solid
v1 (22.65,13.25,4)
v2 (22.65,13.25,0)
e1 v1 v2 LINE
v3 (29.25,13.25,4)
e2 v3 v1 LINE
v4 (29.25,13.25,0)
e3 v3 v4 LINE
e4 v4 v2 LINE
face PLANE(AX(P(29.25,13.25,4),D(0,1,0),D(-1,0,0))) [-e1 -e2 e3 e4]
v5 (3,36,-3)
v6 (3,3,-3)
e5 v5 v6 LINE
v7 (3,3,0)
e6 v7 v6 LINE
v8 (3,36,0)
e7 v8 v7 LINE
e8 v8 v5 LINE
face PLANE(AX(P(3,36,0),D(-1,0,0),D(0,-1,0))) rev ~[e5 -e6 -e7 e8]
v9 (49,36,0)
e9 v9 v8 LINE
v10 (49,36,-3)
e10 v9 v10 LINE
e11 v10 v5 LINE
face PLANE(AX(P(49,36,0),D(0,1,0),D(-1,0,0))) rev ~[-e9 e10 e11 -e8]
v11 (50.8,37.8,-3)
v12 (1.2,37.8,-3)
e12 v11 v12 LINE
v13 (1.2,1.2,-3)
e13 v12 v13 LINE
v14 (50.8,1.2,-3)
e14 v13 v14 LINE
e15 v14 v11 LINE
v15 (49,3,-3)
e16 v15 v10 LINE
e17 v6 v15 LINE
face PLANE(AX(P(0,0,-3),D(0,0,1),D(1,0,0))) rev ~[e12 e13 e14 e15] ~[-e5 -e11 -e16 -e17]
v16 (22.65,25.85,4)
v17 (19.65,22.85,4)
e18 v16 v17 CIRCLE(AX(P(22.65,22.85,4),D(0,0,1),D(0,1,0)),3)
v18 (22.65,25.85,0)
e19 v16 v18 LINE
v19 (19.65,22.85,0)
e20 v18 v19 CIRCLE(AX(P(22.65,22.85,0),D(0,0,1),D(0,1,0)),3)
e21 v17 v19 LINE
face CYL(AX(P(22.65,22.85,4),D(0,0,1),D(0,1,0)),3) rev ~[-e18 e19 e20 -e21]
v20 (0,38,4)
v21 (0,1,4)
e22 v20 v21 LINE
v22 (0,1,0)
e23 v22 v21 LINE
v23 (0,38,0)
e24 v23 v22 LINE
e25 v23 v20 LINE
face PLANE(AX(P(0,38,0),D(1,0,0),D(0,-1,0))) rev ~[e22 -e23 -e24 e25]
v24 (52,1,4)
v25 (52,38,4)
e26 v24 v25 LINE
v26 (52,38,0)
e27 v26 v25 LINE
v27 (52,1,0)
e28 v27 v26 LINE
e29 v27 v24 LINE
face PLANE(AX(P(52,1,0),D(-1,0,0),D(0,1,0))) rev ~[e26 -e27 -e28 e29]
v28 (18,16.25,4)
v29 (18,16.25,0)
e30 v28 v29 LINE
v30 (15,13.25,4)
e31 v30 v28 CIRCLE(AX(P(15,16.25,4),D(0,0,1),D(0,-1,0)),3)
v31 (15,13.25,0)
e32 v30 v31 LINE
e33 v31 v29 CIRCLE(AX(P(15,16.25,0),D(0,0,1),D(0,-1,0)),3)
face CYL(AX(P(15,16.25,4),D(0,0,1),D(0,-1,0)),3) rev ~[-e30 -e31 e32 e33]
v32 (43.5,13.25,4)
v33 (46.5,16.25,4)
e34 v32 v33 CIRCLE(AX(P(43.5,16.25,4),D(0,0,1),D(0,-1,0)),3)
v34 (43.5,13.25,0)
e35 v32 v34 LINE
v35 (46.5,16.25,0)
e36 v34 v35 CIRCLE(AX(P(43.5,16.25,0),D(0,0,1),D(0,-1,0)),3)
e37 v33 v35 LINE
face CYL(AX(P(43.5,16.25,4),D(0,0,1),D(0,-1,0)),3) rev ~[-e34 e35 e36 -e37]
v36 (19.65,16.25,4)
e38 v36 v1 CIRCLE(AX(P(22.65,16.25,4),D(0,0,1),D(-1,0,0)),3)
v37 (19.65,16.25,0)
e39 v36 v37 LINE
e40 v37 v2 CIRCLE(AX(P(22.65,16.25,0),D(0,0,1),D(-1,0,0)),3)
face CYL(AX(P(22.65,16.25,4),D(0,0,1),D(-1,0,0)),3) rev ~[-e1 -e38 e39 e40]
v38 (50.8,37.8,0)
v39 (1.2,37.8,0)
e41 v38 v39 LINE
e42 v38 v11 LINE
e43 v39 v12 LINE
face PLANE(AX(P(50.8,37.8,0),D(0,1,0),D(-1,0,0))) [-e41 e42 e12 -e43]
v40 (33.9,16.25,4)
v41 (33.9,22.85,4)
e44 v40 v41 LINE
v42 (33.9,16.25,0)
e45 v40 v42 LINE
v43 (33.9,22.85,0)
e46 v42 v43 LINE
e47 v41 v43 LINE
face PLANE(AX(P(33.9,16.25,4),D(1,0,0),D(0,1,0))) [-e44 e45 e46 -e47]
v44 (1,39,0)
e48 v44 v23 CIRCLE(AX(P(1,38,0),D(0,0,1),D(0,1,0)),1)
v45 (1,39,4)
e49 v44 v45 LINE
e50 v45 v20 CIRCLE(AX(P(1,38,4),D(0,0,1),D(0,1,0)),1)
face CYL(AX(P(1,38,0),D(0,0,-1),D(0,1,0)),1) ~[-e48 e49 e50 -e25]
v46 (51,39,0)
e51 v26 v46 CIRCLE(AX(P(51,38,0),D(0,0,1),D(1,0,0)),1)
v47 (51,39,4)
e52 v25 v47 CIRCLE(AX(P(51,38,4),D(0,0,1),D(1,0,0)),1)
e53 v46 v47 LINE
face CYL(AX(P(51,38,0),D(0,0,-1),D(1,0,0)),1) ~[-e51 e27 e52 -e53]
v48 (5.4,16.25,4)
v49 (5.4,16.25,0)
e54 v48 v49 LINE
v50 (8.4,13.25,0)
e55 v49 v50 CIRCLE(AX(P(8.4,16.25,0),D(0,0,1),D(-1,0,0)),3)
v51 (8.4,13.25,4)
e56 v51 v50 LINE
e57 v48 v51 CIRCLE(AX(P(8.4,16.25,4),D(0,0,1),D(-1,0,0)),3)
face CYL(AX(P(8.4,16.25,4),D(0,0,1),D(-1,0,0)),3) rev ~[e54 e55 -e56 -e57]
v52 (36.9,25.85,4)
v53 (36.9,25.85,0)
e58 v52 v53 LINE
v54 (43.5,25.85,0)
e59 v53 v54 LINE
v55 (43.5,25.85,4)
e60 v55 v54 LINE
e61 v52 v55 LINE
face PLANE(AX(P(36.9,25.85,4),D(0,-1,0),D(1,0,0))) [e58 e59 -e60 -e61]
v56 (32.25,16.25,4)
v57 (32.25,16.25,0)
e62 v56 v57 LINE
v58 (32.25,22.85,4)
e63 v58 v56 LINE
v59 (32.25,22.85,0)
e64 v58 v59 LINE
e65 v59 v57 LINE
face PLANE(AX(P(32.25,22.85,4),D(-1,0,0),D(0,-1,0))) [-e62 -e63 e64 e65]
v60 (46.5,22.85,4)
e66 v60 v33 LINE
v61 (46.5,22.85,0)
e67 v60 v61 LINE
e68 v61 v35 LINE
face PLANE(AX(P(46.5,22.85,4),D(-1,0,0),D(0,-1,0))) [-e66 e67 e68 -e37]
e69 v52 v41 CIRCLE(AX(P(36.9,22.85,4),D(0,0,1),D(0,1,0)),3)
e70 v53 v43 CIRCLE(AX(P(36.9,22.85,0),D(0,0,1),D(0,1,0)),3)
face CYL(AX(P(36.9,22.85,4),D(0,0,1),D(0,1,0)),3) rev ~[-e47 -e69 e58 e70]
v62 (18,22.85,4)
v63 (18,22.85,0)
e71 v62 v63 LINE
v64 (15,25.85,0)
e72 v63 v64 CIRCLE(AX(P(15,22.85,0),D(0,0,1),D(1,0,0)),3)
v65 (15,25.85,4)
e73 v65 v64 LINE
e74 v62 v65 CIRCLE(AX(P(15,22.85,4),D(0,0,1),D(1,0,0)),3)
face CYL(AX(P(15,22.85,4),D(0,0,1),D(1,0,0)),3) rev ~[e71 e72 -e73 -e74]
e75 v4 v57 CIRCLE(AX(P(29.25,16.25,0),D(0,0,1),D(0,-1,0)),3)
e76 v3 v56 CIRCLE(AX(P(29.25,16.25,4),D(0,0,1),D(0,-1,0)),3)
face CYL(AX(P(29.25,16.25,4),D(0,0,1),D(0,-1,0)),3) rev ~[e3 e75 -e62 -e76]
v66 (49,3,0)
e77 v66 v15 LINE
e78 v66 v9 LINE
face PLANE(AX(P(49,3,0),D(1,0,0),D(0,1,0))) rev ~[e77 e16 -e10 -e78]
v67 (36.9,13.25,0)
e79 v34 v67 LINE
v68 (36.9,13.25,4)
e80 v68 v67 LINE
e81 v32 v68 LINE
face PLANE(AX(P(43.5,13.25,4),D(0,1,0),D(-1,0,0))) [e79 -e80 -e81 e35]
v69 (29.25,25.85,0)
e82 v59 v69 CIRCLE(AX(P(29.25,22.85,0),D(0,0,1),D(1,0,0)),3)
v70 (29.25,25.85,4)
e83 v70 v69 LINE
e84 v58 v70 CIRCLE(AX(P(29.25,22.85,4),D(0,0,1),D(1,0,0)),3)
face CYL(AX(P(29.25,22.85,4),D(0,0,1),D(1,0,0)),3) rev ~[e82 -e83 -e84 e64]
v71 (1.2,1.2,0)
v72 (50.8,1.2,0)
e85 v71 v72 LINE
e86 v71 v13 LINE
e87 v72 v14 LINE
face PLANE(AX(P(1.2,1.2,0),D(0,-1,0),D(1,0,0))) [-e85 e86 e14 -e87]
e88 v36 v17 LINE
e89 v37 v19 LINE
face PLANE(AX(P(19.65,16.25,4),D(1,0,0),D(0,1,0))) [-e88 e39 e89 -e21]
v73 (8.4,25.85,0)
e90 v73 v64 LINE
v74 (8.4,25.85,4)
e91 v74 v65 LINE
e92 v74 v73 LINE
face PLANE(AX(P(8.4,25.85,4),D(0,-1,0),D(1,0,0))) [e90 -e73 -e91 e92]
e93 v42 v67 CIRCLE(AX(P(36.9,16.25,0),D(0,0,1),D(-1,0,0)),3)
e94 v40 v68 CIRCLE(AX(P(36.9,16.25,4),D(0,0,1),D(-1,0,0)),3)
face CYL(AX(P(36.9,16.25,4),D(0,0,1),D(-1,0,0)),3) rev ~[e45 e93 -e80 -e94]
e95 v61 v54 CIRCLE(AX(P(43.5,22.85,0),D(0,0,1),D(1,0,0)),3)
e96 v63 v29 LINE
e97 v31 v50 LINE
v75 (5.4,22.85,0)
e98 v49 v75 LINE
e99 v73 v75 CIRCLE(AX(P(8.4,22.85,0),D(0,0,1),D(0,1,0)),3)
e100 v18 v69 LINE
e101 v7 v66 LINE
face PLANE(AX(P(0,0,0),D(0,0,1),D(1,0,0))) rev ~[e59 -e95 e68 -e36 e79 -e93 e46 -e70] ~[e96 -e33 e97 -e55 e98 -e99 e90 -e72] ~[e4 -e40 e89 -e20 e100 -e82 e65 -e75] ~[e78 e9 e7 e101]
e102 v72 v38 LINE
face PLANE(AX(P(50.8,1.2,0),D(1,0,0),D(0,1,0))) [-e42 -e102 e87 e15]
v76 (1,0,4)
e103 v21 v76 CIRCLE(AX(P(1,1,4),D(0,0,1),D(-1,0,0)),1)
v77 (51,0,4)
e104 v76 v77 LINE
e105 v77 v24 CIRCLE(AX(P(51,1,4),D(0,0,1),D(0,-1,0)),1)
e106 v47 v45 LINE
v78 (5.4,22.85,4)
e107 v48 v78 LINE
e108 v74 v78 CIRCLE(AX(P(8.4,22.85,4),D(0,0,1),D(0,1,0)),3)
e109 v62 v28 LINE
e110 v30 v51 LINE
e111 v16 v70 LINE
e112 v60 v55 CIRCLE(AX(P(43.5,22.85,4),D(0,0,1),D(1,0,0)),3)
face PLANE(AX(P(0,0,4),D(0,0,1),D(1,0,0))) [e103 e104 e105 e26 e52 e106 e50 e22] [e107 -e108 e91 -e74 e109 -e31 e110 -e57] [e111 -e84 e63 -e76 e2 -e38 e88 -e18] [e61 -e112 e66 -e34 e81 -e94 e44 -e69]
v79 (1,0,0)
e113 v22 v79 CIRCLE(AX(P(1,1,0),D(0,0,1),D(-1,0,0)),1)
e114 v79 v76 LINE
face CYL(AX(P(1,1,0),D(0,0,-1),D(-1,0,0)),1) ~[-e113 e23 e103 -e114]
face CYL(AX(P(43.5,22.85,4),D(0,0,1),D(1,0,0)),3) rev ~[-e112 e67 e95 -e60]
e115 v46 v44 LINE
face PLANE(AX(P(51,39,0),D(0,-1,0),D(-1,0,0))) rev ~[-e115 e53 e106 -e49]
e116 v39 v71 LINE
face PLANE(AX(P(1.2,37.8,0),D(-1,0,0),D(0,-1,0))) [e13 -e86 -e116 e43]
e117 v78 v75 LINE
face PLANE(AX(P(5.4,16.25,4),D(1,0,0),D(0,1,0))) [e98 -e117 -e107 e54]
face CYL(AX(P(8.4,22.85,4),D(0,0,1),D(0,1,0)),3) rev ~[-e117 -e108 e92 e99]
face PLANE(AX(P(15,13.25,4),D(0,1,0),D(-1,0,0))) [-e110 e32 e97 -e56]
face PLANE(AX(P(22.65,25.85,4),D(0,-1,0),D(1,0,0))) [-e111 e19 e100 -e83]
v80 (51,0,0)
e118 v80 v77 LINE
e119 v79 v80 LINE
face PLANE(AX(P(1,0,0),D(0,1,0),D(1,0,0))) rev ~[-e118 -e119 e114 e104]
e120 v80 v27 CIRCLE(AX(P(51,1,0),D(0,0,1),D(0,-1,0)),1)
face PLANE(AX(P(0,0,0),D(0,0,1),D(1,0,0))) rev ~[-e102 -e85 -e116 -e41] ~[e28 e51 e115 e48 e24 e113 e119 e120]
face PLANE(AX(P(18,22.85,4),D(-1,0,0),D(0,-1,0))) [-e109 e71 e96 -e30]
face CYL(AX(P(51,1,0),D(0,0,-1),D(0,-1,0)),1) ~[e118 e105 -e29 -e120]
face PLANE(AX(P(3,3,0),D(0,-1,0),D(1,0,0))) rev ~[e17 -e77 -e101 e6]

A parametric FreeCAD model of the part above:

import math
import FreeCAD as App
import Part
import Sketcher


def add_polygon(sketch, points):
    """Adds a closed chain of lines whose ends are joined by coincident constraints."""
    first, n = sketch.GeometryCount, len(points)
    for a, b in zip(points, points[1:] + points[:1]):
        sketch.addGeometry(Part.LineSegment(App.Vector(*a, 0), App.Vector(*b, 0)), False)
    for i in range(n):
        sketch.addConstraint(Sketcher.Constraint("Coincident", first + i, 2, first + (i + 1) % n, 1))

doc = App.newDocument("Part")
params = doc.addObject("Spreadsheet::Sheet", "Params")
for row, (alias, value) in enumerate([
    ("sketch1_radius", "1 mm"),
    ("pad1_length", "4 mm"),
    ("sketch2_width", "46 mm"),
    ("sketch2_height", "33 mm"),
    ("sketch2_width2", "49.6 mm"),
    ("sketch2_height2", "36.6 mm"),
    ("pad2_length", "3 mm"),
    ("sketch3_radius", "3 mm"),
    ("sketch3_width", "6.6 mm"),
    ("pocket1_length", "8 mm"),
], start=1):
    params.set(f"A{row}", alias)
    params.set(f"B{row}", "=" + value)
    params.setAlias(f"B{row}", alias)

body = doc.addObject("PartDesign::Body", "Body")

# Sketch on XY plane
sketch1 = body.newObject("Sketcher::SketchObject", "Sketch")
sketch1.AttachmentSupport = (doc.getObject("XY_Plane"), [""])
sketch1.MapMode = "FlatFace"
sketch1.addGeometry([
    Part.ArcOfCircle(Part.Circle(App.Vector(1, 1, 0), App.Vector(0, 0, 1), 1), math.radians(180), math.radians(270)),  # 0
    Part.LineSegment(App.Vector(1, 0, 0), App.Vector(51, 0, 0)),  # 1
    Part.ArcOfCircle(Part.Circle(App.Vector(51, 1, 0), App.Vector(0, 0, 1), 1), math.radians(-90), math.radians(0)),  # 2
    Part.LineSegment(App.Vector(52, 1, 0), App.Vector(52, 38, 0)),  # 3
    Part.ArcOfCircle(Part.Circle(App.Vector(51, 38, 0), App.Vector(0, 0, 1), 1), math.radians(0), math.radians(90)),  # 4
    Part.LineSegment(App.Vector(51, 39, 0), App.Vector(1, 39, 0)),  # 5
    Part.ArcOfCircle(Part.Circle(App.Vector(1, 38, 0), App.Vector(0, 0, 1), 1), math.radians(90), math.radians(180)),  # 6
    Part.LineSegment(App.Vector(0, 38, 0), App.Vector(0, 1, 0)),  # 7
], False)
sketch1.addConstraint([
    Sketcher.Constraint("Tangent", 0, 2, 1, 1),
    Sketcher.Constraint("Tangent", 1, 2, 2, 1),
    Sketcher.Constraint("Tangent", 2, 2, 3, 1),
    Sketcher.Constraint("Tangent", 3, 2, 4, 1),
    Sketcher.Constraint("Tangent", 4, 2, 5, 1),
    Sketcher.Constraint("Tangent", 5, 2, 6, 1),
    Sketcher.Constraint("Tangent", 6, 2, 7, 1),
    Sketcher.Constraint("Tangent", 7, 2, 0, 1),
    Sketcher.Constraint("Horizontal", 1),
    Sketcher.Constraint("Vertical", 3),
    Sketcher.Constraint("Horizontal", 5),
    Sketcher.Constraint("Vertical", 7),
    Sketcher.Constraint("Equal", 0, 2),
    Sketcher.Constraint("Equal", 2, 4),
    Sketcher.Constraint("Equal", 4, 6),
    Sketcher.Constraint("PointOnObject", 0, 2, -1),
    Sketcher.Constraint("PointOnObject", 6, 2, -2),
    Sketcher.Constraint("Radius", 0, 1.0),
    Sketcher.Constraint("DistanceX", -1, 1, 2, 2, 52.0),
    Sketcher.Constraint("DistanceY", -1, 1, 4, 2, 39.0),
])
sketch1.setExpression("Constraints[17]", "Params.sketch1_radius")
pad1 = body.newObject("PartDesign::Pad", "Pad")
pad1.Profile = sketch1
pad1.setExpression("Length", "Params.pad1_length")

# Sketch on XY plane
sketch2 = body.newObject("Sketcher::SketchObject", "Sketch001")
sketch2.AttachmentSupport = (doc.getObject("XY_Plane"), [""])
sketch2.MapMode = "FlatFace"
add_polygon(sketch2, [(50.8, 37.8), (1.2, 37.8), (1.2, 1.2), (50.8, 1.2)])  # lines 0-3
add_polygon(sketch2, [(49, 36), (49, 3), (3, 3), (3, 36)])  # lines 4-7
sketch2.addConstraint([
    Sketcher.Constraint("Horizontal", 0),
    Sketcher.Constraint("Vertical", 1),
    Sketcher.Constraint("Horizontal", 2),
    Sketcher.Constraint("Vertical", 3),
    Sketcher.Constraint("Vertical", 4),
    Sketcher.Constraint("Horizontal", 5),
    Sketcher.Constraint("Vertical", 6),
    Sketcher.Constraint("Horizontal", 7),
    Sketcher.Constraint("DistanceY", -1, 1, 4, 2, 3.0),
    Sketcher.Constraint("DistanceX", -1, 1, 5, 2, 3.0),
    Sketcher.Constraint("DistanceX", -1, 1, 0, 2, 1.2),
    Sketcher.Constraint("DistanceY", -1, 1, 1, 2, 1.2),
    Sketcher.Constraint("DistanceX", 5, 2, 5, 1, 46.0),
    Sketcher.Constraint("DistanceY", 4, 2, 4, 1, 33.0),
    Sketcher.Constraint("DistanceX", 0, 2, 0, 1, 49.6),
    Sketcher.Constraint("DistanceY", 1, 2, 1, 1, 36.6),
])
sketch2.setExpression("Constraints[20]", "Params.sketch2_width")
sketch2.setExpression("Constraints[21]", "Params.sketch2_height")
sketch2.setExpression("Constraints[22]", "Params.sketch2_width2")
sketch2.setExpression("Constraints[23]", "Params.sketch2_height2")
pad2 = body.newObject("PartDesign::Pad", "Pad001")
pad2.Profile = sketch2
pad2.setExpression("Length", "Params.pad2_length")
pad2.Reversed = True

# Sketch on XY plane
sketch3 = body.newObject("Sketcher::SketchObject", "Sketch002")
sketch3.AttachmentSupport = (doc.getObject("XY_Plane"), [""])
sketch3.MapMode = "FlatFace"
sketch3.AttachmentOffset = App.Placement(App.Vector(0, 0, 4), App.Rotation())
sketch3.addGeometry([
    Part.LineSegment(App.Vector(36.9, 13.25, 0), App.Vector(43.5, 13.25, 0)),  # 0
    Part.ArcOfCircle(Part.Circle(App.Vector(43.5, 16.25, 0), App.Vector(0, 0, 1), 3), math.radians(-90), math.radians(0)),  # 1
    Part.LineSegment(App.Vector(46.5, 16.25, 0), App.Vector(46.5, 22.85, 0)),  # 2
    Part.ArcOfCircle(Part.Circle(App.Vector(43.5, 22.85, 0), App.Vector(0, 0, 1), 3), math.radians(0), math.radians(90)),  # 3
    Part.LineSegment(App.Vector(43.5, 25.85, 0), App.Vector(36.9, 25.85, 0)),  # 4
    Part.ArcOfCircle(Part.Circle(App.Vector(36.9, 22.85, 0), App.Vector(0, 0, 1), 3), math.radians(90), math.radians(180)),  # 5
    Part.LineSegment(App.Vector(33.9, 22.85, 0), App.Vector(33.9, 16.25, 0)),  # 6
    Part.ArcOfCircle(Part.Circle(App.Vector(36.9, 16.25, 0), App.Vector(0, 0, 1), 3), math.radians(180), math.radians(270)),  # 7
    Part.LineSegment(App.Vector(22.65, 13.25, 0), App.Vector(29.25, 13.25, 0)),  # 8
    Part.ArcOfCircle(Part.Circle(App.Vector(29.25, 16.25, 0), App.Vector(0, 0, 1), 3), math.radians(-90), math.radians(0)),  # 9
    Part.LineSegment(App.Vector(32.25, 16.25, 0), App.Vector(32.25, 22.85, 0)),  # 10
    Part.ArcOfCircle(Part.Circle(App.Vector(29.25, 22.85, 0), App.Vector(0, 0, 1), 3), math.radians(0), math.radians(90)),  # 11
    Part.LineSegment(App.Vector(29.25, 25.85, 0), App.Vector(22.65, 25.85, 0)),  # 12
    Part.ArcOfCircle(Part.Circle(App.Vector(22.65, 22.85, 0), App.Vector(0, 0, 1), 3), math.radians(90), math.radians(180)),  # 13
    Part.LineSegment(App.Vector(19.65, 22.85, 0), App.Vector(19.65, 16.25, 0)),  # 14
    Part.ArcOfCircle(Part.Circle(App.Vector(22.65, 16.25, 0), App.Vector(0, 0, 1), 3), math.radians(180), math.radians(270)),  # 15
    Part.LineSegment(App.Vector(8.4, 13.25, 0), App.Vector(15, 13.25, 0)),  # 16
    Part.ArcOfCircle(Part.Circle(App.Vector(15, 16.25, 0), App.Vector(0, 0, 1), 3), math.radians(-90), math.radians(0)),  # 17
    Part.LineSegment(App.Vector(18, 16.25, 0), App.Vector(18, 22.85, 0)),  # 18
    Part.ArcOfCircle(Part.Circle(App.Vector(15, 22.85, 0), App.Vector(0, 0, 1), 3), math.radians(0), math.radians(90)),  # 19
    Part.LineSegment(App.Vector(15, 25.85, 0), App.Vector(8.4, 25.85, 0)),  # 20
    Part.ArcOfCircle(Part.Circle(App.Vector(8.4, 22.85, 0), App.Vector(0, 0, 1), 3), math.radians(90), math.radians(180)),  # 21
    Part.LineSegment(App.Vector(5.4, 22.85, 0), App.Vector(5.4, 16.25, 0)),  # 22
    Part.ArcOfCircle(Part.Circle(App.Vector(8.4, 16.25, 0), App.Vector(0, 0, 1), 3), math.radians(180), math.radians(270)),  # 23
], False)
sketch3.addConstraint([
    Sketcher.Constraint("Tangent", 0, 2, 1, 1),
    Sketcher.Constraint("Tangent", 1, 2, 2, 1),
    Sketcher.Constraint("Tangent", 2, 2, 3, 1),
    Sketcher.Constraint("Tangent", 3, 2, 4, 1),
    Sketcher.Constraint("Tangent", 4, 2, 5, 1),
    Sketcher.Constraint("Tangent", 5, 2, 6, 1),
    Sketcher.Constraint("Tangent", 6, 2, 7, 1),
    Sketcher.Constraint("Tangent", 7, 2, 0, 1),
    Sketcher.Constraint("Tangent", 8, 2, 9, 1),
    Sketcher.Constraint("Tangent", 9, 2, 10, 1),
    Sketcher.Constraint("Tangent", 10, 2, 11, 1),
    Sketcher.Constraint("Tangent", 11, 2, 12, 1),
    Sketcher.Constraint("Tangent", 12, 2, 13, 1),
    Sketcher.Constraint("Tangent", 13, 2, 14, 1),
    Sketcher.Constraint("Tangent", 14, 2, 15, 1),
    Sketcher.Constraint("Tangent", 15, 2, 8, 1),
    Sketcher.Constraint("Tangent", 16, 2, 17, 1),
    Sketcher.Constraint("Tangent", 17, 2, 18, 1),
    Sketcher.Constraint("Tangent", 18, 2, 19, 1),
    Sketcher.Constraint("Tangent", 19, 2, 20, 1),
    Sketcher.Constraint("Tangent", 20, 2, 21, 1),
    Sketcher.Constraint("Tangent", 21, 2, 22, 1),
    Sketcher.Constraint("Tangent", 22, 2, 23, 1),
    Sketcher.Constraint("Tangent", 23, 2, 16, 1),
    Sketcher.Constraint("Horizontal", 0),
    Sketcher.Constraint("Vertical", 2),
    Sketcher.Constraint("Horizontal", 4),
    Sketcher.Constraint("Vertical", 6),
    Sketcher.Constraint("Horizontal", 8),
    Sketcher.Constraint("Vertical", 10),
    Sketcher.Constraint("Horizontal", 12),
    Sketcher.Constraint("Vertical", 14),
    Sketcher.Constraint("Horizontal", 16),
    Sketcher.Constraint("Vertical", 18),
    Sketcher.Constraint("Horizontal", 20),
    Sketcher.Constraint("Vertical", 22),
    Sketcher.Constraint("Equal", 1, 3),
    Sketcher.Constraint("Equal", 3, 5),
    Sketcher.Constraint("Equal", 5, 7),
    Sketcher.Constraint("Equal", 7, 9),
    Sketcher.Constraint("Equal", 9, 11),
    Sketcher.Constraint("Equal", 11, 13),
    Sketcher.Constraint("Equal", 13, 15),
    Sketcher.Constraint("Equal", 15, 17),
    Sketcher.Constraint("Equal", 17, 19),
    Sketcher.Constraint("Equal", 19, 21),
    Sketcher.Constraint("Equal", 21, 23),
    Sketcher.Constraint("Horizontal", 7, 3, 9, 3),
    Sketcher.Constraint("Horizontal", 5, 3, 11, 3),
    Sketcher.Constraint("Horizontal", 15, 3, 17, 3),
    Sketcher.Constraint("Horizontal", 13, 3, 19, 3),
    Sketcher.Constraint("Equal", 4, 8),
    Sketcher.Constraint("Equal", 12, 16),
    Sketcher.Constraint("Equal", 20, 2),
    Sketcher.Constraint("Radius", 1, 3.0),
    Sketcher.Constraint("DistanceY", -1, 1, 0, 2, 13.25),
    Sketcher.Constraint("DistanceX", 9, 3, 1, 3, 14.25),
    Sketcher.Constraint("DistanceX", 17, 3, 9, 3, 14.25),
    Sketcher.Constraint("DistanceX", 0, 1, 0, 2, 6.6),
    Sketcher.Constraint("DistanceX", -1, 1, 17, 3, 15.0),
])
sketch3.setExpression("Constraints[54]", "Params.sketch3_radius")
sketch3.setExpression("Constraints[58]", "Params.sketch3_width")
pocket1 = body.newObject("PartDesign::Pocket", "Pocket")
pocket1.Profile = sketch3
pocket1.setExpression("Length", "Params.pocket1_length")

doc.recompute()
